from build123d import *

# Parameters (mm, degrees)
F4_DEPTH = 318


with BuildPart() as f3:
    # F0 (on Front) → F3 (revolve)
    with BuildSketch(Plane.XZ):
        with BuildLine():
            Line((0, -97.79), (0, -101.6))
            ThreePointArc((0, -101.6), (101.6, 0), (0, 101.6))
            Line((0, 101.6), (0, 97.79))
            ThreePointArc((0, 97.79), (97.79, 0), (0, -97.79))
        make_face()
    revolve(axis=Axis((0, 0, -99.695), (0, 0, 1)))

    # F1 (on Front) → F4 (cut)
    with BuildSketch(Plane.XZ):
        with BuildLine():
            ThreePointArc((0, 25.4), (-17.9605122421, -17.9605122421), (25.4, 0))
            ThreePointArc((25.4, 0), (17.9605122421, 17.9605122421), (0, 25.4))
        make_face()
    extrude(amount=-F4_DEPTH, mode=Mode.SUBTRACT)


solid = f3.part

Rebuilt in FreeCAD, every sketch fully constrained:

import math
import FreeCAD as App
import Part
import Sketcher

V = App.Vector
Q = App.Units.Quantity

doc = App.newDocument("Part")
body = doc.addObject("PartDesign::Body", "Body")

# Sketch on XZ plane
sketch1 = doc.addObject("Sketcher::SketchObject", "Sketch")
body.addObject(sketch1)
sketch1.AttachmentSupport = (doc.XZ_Plane, [""])
sketch1.MapMode = "FlatFace"
sketch1.addGeometry([
    Part.LineSegment(V(0, -97.8, 0), V(0, -101.6, 0)),
    Part.ArcOfCircle(Part.Circle(V(0, 0, 0), V(0, 0, 1), 101.6), math.radians(-90), math.radians(90)),
    Part.LineSegment(V(0, 101.6, 0), V(0, 97.8, 0)),
    Part.ArcOfCircle(Part.Circle(V(0, 0, 0), V(0, 0, 1), 97.8), math.radians(-90), math.radians(90)),
], False)
sketch1.addConstraint([
    Sketcher.Constraint("Coincident", 0, 2, 1, 1),
    Sketcher.Constraint("Coincident", 1, 2, 2, 1),
    Sketcher.Constraint("Coincident", 2, 2, 3, 2),
    Sketcher.Constraint("Coincident", 3, 1, 0, 1),
    Sketcher.Constraint("Vertical", 0),
    Sketcher.Constraint("Vertical", 2),
    Sketcher.Constraint("Coincident", 1, 3, -1, 1),
    Sketcher.Constraint("Coincident", 3, 3, -1, 1),
    Sketcher.Constraint("PointOnObject", 0, 2, -2),
    Sketcher.Constraint("PointOnObject", 1, 2, -2),
    Sketcher.Constraint("Radius", 1, Q("4 in")),
    Sketcher.Constraint("Radius", 3, Q("3.85 in")),
])
revolution = doc.addObject("PartDesign::Revolution", "Revolution")
body.addObject(revolution)
revolution.Profile = sketch1
revolution.ReferenceAxis = (sketch1, ["V_Axis"])
revolution.Angle = 360

# Sketch on XZ plane
sketch2 = doc.addObject("Sketcher::SketchObject", "Sketch001")
body.addObject(sketch2)
sketch2.AttachmentSupport = (doc.XZ_Plane, [""])
sketch2.MapMode = "FlatFace"
sketch2.addGeometry([
    Part.ArcOfCircle(Part.Circle(V(0, 0, 0), V(0, 0, 1), 25), math.radians(90), math.radians(360)),
    Part.ArcOfCircle(Part.Circle(V(0, 0, 0), V(0, 0, 1), 25), math.radians(0), math.radians(90)),
], False)
sketch2.addConstraint([
    Sketcher.Constraint("Tangent", 0, 1, 1, 2),
    Sketcher.Constraint("Coincident", 1, 1, 0, 2),
    Sketcher.Constraint("Coincident", 0, 3, -1, 1),
    Sketcher.Constraint("PointOnObject", 0, 1, -2),
    Sketcher.Constraint("PointOnObject", 1, 1, -1),
    Sketcher.Constraint("Radius", 0, Q("1 in")),
])
pocket1 = doc.addObject("PartDesign::Pocket", "Pocket")
body.addObject(pocket1)
pocket1.Profile = sketch2
pocket1.Length = 318

doc.recompute()
